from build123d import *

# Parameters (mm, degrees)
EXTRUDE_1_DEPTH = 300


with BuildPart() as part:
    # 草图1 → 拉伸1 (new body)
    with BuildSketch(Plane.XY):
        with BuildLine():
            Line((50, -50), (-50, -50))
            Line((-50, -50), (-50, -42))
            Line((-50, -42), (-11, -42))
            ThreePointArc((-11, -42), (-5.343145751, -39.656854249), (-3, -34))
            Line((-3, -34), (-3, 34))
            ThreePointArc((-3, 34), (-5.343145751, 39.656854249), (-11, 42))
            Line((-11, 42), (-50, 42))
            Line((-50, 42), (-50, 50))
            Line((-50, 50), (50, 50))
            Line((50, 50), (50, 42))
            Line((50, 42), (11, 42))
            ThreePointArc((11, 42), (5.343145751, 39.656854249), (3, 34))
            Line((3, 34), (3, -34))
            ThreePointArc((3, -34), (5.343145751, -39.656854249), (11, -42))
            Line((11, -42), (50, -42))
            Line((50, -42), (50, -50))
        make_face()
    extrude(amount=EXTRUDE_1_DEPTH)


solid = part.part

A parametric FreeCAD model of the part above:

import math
import FreeCAD as App
import Part
import Sketcher

V = App.Vector

doc = App.newDocument("Part")
body = doc.addObject("PartDesign::Body", "Body")

sketch1 = doc.addObject("Sketcher::SketchObject", "Sketch")
body.addObject(sketch1)
sketch1.AttachmentSupport = (doc.XY_Plane, [""])
sketch1.MapMode = "FlatFace"
sketch1.addGeometry([
    Part.LineSegment(V(-50, -50, 0), V(50, -50, 0)),
    Part.LineSegment(V(50, -50, 0), V(50, -42, 0)),
    Part.LineSegment(V(50, -42, 0), V(11, -42, 0)),
    Part.ArcOfCircle(Part.Circle(V(11, -34, 0), V(0, 0, 1), 8), math.radians(-180), math.radians(-90)),
    Part.LineSegment(V(3, -34, 0), V(3, 34, 0)),
    Part.ArcOfCircle(Part.Circle(V(11, 34, 0), V(0, 0, 1), 8), math.radians(90), math.radians(180)),
    Part.LineSegment(V(11, 42, 0), V(50, 42, 0)),
    Part.LineSegment(V(50, 42, 0), V(50, 50, 0)),
    Part.LineSegment(V(50, 50, 0), V(-50, 50, 0)),
    Part.LineSegment(V(-50, 50, 0), V(-50, 42, 0)),
    Part.LineSegment(V(-50, 42, 0), V(-11, 42, 0)),
    Part.ArcOfCircle(Part.Circle(V(-11, 34, 0), V(0, 0, 1), 8), math.radians(0), math.radians(90)),
    Part.LineSegment(V(-3, 34, 0), V(-3, -34, 0)),
    Part.ArcOfCircle(Part.Circle(V(-11, -34, 0), V(0, 0, 1), 8), math.radians(-90), math.radians(0)),
    Part.LineSegment(V(-11, -42, 0), V(-50, -42, 0)),
    Part.LineSegment(V(-50, -42, 0), V(-50, -50, 0)),
], False)
sketch1.addConstraint([
    Sketcher.Constraint("Coincident", 0, 2, 1, 1),
    Sketcher.Constraint("Coincident", 1, 2, 2, 1),
    Sketcher.Constraint("Tangent", 2, 2, 3, 2),
    Sketcher.Constraint("Tangent", 3, 1, 4, 1),
    Sketcher.Constraint("Tangent", 4, 2, 5, 2),
    Sketcher.Constraint("Tangent", 5, 1, 6, 1),
    Sketcher.Constraint("Coincident", 6, 2, 7, 1),
    Sketcher.Constraint("Coincident", 7, 2, 8, 1),
    Sketcher.Constraint("Coincident", 8, 2, 9, 1),
    Sketcher.Constraint("Coincident", 9, 2, 10, 1),
    Sketcher.Constraint("Tangent", 10, 2, 11, 2),
    Sketcher.Constraint("Tangent", 11, 1, 12, 1),
    Sketcher.Constraint("Tangent", 12, 2, 13, 2),
    Sketcher.Constraint("Tangent", 13, 1, 14, 1),
    Sketcher.Constraint("Coincident", 14, 2, 15, 1),
    Sketcher.Constraint("Coincident", 15, 2, 0, 1),
    Sketcher.Constraint("Horizontal", 0),
    Sketcher.Constraint("Vertical", 1),
    Sketcher.Constraint("Horizontal", 2),
    Sketcher.Constraint("Vertical", 4),
    Sketcher.Constraint("Horizontal", 6),
    Sketcher.Constraint("Vertical", 7),
    Sketcher.Constraint("Horizontal", 8),
    Sketcher.Constraint("Vertical", 9),
    Sketcher.Constraint("Horizontal", 10),
    Sketcher.Constraint("Vertical", 12),
    Sketcher.Constraint("Horizontal", 14),
    Sketcher.Constraint("Vertical", 15),
    Sketcher.Constraint("Equal", 3, 5),
    Sketcher.Constraint("Equal", 5, 11),
    Sketcher.Constraint("Equal", 11, 13),
    Sketcher.Constraint("Symmetric", 3, 3, 11, 3, -1, 1),
    Sketcher.Constraint("Symmetric", 0, 2, 8, 2, -1, 1),
    Sketcher.Constraint("Symmetric", 6, 2, 14, 2, -1, 1),
    Sketcher.Constraint("Symmetric", 6, 2, 9, 2, -2),
    Sketcher.Constraint("Radius", 3, 8.0),
    Sketcher.Constraint("DistanceX", 0, 1, 0, 2, 100.0),
    Sketcher.Constraint("DistanceX", 2, 2, 2, 1, 39.0),
    Sketcher.Constraint("DistanceY", 1, 1, 1, 2, 8.0),
    Sketcher.Constraint("DistanceY", 4, 1, 4, 2, 68.0),
])
pad1 = doc.addObject("PartDesign::Pad", "Pad")
body.addObject(pad1)
pad1.Profile = sketch1
pad1.Length = 300

doc.recompute()
